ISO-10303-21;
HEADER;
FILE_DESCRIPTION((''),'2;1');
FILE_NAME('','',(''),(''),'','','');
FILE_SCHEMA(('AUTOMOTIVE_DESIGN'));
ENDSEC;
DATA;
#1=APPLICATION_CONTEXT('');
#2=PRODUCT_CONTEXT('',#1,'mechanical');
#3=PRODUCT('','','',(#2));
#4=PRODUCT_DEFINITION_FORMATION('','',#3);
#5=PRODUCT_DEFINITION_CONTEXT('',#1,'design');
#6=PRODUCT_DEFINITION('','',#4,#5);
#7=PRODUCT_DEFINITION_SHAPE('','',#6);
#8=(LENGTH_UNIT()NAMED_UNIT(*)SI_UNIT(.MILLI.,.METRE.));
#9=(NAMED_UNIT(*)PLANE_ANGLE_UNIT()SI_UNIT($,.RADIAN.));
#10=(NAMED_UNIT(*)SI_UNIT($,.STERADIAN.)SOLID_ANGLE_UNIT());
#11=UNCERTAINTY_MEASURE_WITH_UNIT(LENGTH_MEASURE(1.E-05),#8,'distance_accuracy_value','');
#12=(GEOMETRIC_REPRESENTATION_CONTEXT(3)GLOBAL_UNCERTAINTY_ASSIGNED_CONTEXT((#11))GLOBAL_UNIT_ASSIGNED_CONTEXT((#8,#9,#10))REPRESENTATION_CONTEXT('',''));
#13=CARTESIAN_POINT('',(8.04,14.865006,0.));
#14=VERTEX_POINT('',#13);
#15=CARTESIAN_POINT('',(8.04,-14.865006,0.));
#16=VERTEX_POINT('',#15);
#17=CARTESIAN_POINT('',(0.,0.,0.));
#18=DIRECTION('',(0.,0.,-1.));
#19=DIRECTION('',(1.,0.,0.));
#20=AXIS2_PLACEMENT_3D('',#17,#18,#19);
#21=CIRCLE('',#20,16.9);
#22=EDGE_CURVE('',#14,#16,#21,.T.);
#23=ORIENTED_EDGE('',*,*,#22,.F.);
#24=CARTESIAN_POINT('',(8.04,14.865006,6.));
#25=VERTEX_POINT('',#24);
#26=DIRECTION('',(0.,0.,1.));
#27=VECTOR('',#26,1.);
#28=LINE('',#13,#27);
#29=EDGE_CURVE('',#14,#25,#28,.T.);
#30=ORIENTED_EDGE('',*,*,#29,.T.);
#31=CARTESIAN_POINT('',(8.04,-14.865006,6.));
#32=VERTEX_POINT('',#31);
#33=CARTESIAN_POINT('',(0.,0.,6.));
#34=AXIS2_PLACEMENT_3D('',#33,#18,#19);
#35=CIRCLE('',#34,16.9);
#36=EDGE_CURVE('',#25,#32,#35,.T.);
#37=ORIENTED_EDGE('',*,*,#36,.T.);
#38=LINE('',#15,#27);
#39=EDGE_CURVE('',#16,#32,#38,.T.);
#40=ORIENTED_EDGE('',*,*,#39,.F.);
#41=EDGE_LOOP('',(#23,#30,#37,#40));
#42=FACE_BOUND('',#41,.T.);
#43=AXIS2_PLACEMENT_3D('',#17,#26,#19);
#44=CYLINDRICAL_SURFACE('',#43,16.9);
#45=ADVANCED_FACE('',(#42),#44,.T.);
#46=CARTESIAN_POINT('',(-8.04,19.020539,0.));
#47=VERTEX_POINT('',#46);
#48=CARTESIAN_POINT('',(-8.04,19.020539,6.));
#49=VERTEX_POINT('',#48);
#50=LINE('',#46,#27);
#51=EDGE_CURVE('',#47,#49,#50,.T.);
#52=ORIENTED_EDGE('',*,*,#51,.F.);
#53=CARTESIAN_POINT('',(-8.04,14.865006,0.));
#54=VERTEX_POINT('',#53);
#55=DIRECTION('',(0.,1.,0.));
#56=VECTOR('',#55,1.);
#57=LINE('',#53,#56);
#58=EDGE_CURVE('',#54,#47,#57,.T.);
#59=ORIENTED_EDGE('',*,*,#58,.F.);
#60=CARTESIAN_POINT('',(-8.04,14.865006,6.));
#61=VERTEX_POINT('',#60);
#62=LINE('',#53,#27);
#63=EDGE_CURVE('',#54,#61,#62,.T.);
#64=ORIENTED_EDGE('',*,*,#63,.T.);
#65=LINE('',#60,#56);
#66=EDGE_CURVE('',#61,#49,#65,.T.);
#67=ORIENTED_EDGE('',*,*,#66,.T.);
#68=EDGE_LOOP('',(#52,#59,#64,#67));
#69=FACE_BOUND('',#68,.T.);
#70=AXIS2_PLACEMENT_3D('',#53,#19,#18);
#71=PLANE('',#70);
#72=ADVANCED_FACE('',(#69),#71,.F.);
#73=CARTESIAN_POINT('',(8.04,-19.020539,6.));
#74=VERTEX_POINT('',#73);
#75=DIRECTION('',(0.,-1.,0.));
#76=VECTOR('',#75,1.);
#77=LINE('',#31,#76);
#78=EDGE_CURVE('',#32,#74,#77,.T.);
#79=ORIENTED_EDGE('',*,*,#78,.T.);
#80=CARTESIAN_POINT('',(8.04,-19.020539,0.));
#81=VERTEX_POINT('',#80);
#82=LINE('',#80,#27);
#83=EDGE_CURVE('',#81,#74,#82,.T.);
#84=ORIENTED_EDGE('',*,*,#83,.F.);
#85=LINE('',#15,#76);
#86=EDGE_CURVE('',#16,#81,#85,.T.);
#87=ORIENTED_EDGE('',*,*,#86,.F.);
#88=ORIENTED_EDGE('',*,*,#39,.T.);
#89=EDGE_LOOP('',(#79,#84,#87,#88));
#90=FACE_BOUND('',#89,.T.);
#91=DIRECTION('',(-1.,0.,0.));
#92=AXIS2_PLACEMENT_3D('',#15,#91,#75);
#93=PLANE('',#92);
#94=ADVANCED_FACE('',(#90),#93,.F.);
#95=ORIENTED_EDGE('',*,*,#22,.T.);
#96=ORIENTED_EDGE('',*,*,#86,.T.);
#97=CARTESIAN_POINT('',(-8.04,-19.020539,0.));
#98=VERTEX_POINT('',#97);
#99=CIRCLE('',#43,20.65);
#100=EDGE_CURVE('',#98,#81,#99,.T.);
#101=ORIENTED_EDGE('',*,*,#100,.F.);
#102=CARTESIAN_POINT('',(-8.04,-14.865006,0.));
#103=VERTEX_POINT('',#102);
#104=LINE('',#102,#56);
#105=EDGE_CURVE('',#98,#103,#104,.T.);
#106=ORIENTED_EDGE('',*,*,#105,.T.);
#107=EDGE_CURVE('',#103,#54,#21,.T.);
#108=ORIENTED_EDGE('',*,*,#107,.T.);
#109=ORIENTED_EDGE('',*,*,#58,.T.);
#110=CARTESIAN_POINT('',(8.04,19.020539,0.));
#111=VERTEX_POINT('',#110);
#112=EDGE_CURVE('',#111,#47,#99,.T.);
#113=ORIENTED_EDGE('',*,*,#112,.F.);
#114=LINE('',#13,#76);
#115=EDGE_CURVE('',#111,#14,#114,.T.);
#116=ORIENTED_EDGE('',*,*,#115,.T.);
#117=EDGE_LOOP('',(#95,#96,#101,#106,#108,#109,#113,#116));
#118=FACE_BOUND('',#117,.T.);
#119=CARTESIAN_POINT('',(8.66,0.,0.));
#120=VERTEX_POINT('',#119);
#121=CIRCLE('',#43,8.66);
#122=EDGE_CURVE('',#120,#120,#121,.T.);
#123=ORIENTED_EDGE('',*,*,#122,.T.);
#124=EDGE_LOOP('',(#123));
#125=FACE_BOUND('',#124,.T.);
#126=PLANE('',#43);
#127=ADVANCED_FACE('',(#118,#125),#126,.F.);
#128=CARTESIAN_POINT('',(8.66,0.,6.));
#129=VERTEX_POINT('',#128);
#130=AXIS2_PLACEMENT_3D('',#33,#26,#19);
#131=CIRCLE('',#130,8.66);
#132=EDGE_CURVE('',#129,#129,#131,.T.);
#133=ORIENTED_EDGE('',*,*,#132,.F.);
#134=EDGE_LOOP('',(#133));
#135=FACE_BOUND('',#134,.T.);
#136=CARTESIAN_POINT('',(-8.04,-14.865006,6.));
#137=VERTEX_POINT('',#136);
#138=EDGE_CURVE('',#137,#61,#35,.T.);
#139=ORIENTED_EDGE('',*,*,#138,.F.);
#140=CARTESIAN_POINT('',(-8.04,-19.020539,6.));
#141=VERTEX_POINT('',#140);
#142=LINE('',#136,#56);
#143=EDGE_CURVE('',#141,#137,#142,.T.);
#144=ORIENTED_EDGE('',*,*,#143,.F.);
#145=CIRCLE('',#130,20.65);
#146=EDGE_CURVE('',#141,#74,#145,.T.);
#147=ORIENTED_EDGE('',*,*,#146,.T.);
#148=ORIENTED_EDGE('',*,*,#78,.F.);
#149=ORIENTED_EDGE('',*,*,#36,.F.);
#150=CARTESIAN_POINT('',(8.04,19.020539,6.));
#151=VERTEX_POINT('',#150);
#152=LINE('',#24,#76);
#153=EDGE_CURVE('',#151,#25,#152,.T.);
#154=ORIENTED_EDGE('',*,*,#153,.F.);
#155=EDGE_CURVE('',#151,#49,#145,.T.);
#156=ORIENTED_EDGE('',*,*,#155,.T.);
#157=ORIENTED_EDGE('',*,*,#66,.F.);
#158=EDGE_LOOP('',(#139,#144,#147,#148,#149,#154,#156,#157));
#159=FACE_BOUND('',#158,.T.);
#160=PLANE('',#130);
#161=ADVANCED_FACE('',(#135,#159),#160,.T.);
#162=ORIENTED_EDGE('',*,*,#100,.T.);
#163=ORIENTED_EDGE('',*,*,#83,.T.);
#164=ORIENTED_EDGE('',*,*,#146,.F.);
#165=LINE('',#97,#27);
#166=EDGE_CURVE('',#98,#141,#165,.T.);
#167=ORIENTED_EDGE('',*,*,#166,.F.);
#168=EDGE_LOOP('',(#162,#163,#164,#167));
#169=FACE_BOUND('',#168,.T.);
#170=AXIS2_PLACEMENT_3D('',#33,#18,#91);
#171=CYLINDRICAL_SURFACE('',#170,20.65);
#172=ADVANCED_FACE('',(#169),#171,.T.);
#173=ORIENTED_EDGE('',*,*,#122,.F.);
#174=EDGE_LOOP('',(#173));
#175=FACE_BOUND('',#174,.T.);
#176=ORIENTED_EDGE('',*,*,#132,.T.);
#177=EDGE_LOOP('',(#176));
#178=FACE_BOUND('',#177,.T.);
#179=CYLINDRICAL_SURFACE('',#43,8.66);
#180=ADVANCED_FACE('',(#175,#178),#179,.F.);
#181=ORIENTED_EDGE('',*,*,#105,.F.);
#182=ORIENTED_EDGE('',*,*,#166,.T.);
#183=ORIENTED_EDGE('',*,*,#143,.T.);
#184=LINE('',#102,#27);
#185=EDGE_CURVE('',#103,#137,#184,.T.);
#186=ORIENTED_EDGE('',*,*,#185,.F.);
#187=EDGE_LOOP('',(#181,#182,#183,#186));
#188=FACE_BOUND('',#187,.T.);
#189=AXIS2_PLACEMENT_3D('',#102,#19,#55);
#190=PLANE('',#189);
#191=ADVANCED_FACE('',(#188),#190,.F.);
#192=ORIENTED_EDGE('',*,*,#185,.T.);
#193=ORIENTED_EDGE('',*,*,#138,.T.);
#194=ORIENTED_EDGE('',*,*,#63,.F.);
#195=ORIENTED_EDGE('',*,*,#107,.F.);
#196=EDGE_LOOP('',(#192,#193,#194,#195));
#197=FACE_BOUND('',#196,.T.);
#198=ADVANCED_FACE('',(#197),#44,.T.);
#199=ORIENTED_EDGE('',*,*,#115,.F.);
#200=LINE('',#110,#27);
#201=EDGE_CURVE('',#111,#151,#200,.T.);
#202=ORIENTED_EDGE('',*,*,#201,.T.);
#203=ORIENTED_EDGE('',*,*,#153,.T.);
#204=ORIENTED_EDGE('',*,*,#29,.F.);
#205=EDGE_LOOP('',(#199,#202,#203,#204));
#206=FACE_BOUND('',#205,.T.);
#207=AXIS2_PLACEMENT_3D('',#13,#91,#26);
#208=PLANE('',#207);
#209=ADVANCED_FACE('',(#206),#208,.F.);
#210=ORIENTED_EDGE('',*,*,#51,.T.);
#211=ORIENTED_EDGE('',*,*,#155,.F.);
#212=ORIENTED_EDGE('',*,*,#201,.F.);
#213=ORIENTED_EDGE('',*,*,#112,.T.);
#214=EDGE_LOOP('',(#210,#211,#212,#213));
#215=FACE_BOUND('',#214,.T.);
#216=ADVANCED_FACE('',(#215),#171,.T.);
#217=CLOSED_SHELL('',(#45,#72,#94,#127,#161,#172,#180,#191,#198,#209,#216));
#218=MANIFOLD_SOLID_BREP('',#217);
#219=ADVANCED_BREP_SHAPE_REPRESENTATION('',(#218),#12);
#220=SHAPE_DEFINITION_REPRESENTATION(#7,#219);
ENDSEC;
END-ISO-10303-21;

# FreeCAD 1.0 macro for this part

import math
import FreeCAD as App
import Part
import Sketcher

doc = App.newDocument("Part")
body = doc.addObject("PartDesign::Body", "Body")

# Sketch on XY plane
sketch1 = doc.addObject("Sketcher::SketchObject", "Sketch")
body.addObject(sketch1)
sketch1.AttachmentSupport = (doc.XY_Plane, [""])
sketch1.MapMode = "FlatFace"
sketch1.addGeometry(Part.Circle(App.Vector(0, 0, 0), App.Vector(0, 0, 1), 20.65), False)
sketch1.addConstraint(Sketcher.Constraint("Coincident", 0, 3, -1, 1))
sketch1.addConstraint(Sketcher.Constraint("Diameter", 0, 41.3))
pad1 = doc.addObject("PartDesign::Pad", "Pad")
body.addObject(pad1)
pad1.Profile = sketch1
pad1.Length = 6

# Sketch on XY plane
sketch2 = doc.addObject("Sketcher::SketchObject", "Sketch001")
body.addObject(sketch2)
sketch2.AttachmentSupport = (doc.XY_Plane, [""])
sketch2.MapMode = "FlatFace"
sketch2.addGeometry(Part.LineSegment(App.Vector(8.04, 19.020539, 0), App.Vector(8.04, 14.865006, 0)), False)
sketch2.addGeometry(Part.ArcOfCircle(Part.Circle(App.Vector(0, 0, 0), App.Vector(0, 0, 1), 16.9), math.radians(-61.592481), math.radians(61.592481)), False)
sketch2.addGeometry(Part.LineSegment(App.Vector(8.04, -14.865006, 0), App.Vector(8.04, -19.020539, 0)), False)
sketch2.addGeometry(Part.ArcOfCircle(Part.Circle(App.Vector(0, 0, 0), App.Vector(0, 0, 1), 20.65), math.radians(-67.086173), math.radians(67.086173)), False)
sketch2.addGeometry(Part.LineSegment(App.Vector(-8.04, 14.865006, 0), App.Vector(-8.04, 19.020539, 0)), False)
sketch2.addGeometry(Part.ArcOfCircle(Part.Circle(App.Vector(0, 0, 0), App.Vector(0, 0, 1), 20.65), math.radians(112.913827), math.radians(247.086173)), False)
sketch2.addGeometry(Part.LineSegment(App.Vector(-8.04, -19.020539, 0), App.Vector(-8.04, -14.865006, 0)), False)
sketch2.addGeometry(Part.ArcOfCircle(Part.Circle(App.Vector(0, 0, 0), App.Vector(0, 0, 1), 16.9), math.radians(118.407519), math.radians(241.592481)), False)
sketch2.addConstraint(Sketcher.Constraint("Coincident", 0, 2, 1, 2))
sketch2.addConstraint(Sketcher.Constraint("Coincident", 1, 1, 2, 1))
sketch2.addConstraint(Sketcher.Constraint("Coincident", 2, 2, 3, 1))
sketch2.addConstraint(Sketcher.Constraint("Coincident", 3, 2, 0, 1))
sketch2.addConstraint(Sketcher.Constraint("Coincident", 4, 2, 5, 1))
sketch2.addConstraint(Sketcher.Constraint("Coincident", 5, 2, 6, 1))
sketch2.addConstraint(Sketcher.Constraint("Coincident", 6, 2, 7, 2))
sketch2.addConstraint(Sketcher.Constraint("Coincident", 7, 1, 4, 1))
sketch2.addConstraint(Sketcher.Constraint("Vertical", 0))
sketch2.addConstraint(Sketcher.Constraint("Vertical", 2))
sketch2.addConstraint(Sketcher.Constraint("Vertical", 4))
sketch2.addConstraint(Sketcher.Constraint("Vertical", 6))
sketch2.addConstraint(Sketcher.Constraint("Coincident", 1, 3, -1, 1))
sketch2.addConstraint(Sketcher.Constraint("Coincident", 3, 3, -1, 1))
sketch2.addConstraint(Sketcher.Constraint("Coincident", 5, 3, -1, 1))
sketch2.addConstraint(Sketcher.Constraint("Coincident", 7, 3, -1, 1))
sketch2.addConstraint(Sketcher.Constraint("Equal", 3, 5))
sketch2.addConstraint(Sketcher.Constraint("Equal", 1, 7))
sketch2.addConstraint(Sketcher.Constraint("Horizontal", 3, 2, 4, 2))
sketch2.addConstraint(Sketcher.Constraint("Horizontal", 2, 2, 5, 2))
sketch2.addConstraint(Sketcher.Constraint("Vertical", 0, 2, 1, 1))
sketch2.addConstraint(Sketcher.Constraint("Radius", 1, 16.9))
sketch2.addConstraint(Sketcher.Constraint("Radius", 3, 20.65))
sketch2.addConstraint(Sketcher.Constraint("DistanceX", -1, 1, 0, 2, 8.04))
pocket1 = doc.addObject("PartDesign::Pocket", "Pocket")
body.addObject(pocket1)
pocket1.Profile = sketch2
pocket1.Length = 6
pocket1.Reversed = True

# Sketch on XY plane
sketch3 = doc.addObject("Sketcher::SketchObject", "Sketch002")
body.addObject(sketch3)
sketch3.AttachmentSupport = (doc.XY_Plane, [""])
sketch3.MapMode = "FlatFace"
sketch3.AttachmentOffset = App.Placement(App.Vector(0, 0, 6), App.Rotation())
sketch3.addGeometry(Part.Circle(App.Vector(0, 0, 0), App.Vector(0, 0, 1), 8.66), False)
sketch3.addConstraint(Sketcher.Constraint("Coincident", 0, 3, -1, 1))
sketch3.addConstraint(Sketcher.Constraint("Diameter", 0, 17.32))
pocket2 = doc.addObject("PartDesign::Pocket", "Pocket001")
body.addObject(pocket2)
pocket2.Profile = sketch3
pocket2.Length = 6

doc.recompute()
